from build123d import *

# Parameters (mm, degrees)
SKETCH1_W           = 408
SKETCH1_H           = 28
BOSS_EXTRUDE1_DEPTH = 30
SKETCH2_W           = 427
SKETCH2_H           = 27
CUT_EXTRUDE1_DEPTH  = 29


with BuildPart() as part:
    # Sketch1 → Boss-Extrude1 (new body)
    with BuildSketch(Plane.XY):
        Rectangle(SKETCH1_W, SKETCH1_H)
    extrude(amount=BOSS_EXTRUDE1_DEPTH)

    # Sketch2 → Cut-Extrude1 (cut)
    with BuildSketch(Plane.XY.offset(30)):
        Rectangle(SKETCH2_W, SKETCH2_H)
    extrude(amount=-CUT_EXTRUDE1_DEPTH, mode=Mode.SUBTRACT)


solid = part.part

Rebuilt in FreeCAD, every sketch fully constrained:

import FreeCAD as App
import Part
import Sketcher

V = App.Vector
Q = App.Units.Quantity

doc = App.newDocument("Part")
body = doc.addObject("PartDesign::Body", "Body")

sketch1 = doc.addObject("Sketcher::SketchObject", "Sketch")
body.addObject(sketch1)
sketch1.AttachmentSupport = (doc.XY_Plane, [""])
sketch1.MapMode = "FlatFace"
sketch1.addGeometry(Part.LineSegment(V(-204, 14, 0), V(-204, -14, 0)), False)
sketch1.addGeometry(Part.LineSegment(V(-204, -14, 0), V(204, -14, 0)), False)
sketch1.addGeometry(Part.LineSegment(V(204, -14, 0), V(204, 14, 0)), False)
sketch1.addGeometry(Part.LineSegment(V(204, 14, 0), V(-204, 14, 0)), False)
sketch1.addConstraint(Sketcher.Constraint("Coincident", 0, 2, 1, 1))
sketch1.addConstraint(Sketcher.Constraint("Coincident", 1, 2, 2, 1))
sketch1.addConstraint(Sketcher.Constraint("Coincident", 2, 2, 3, 1))
sketch1.addConstraint(Sketcher.Constraint("Coincident", 3, 2, 0, 1))
sketch1.addConstraint(Sketcher.Constraint("Vertical", 0))
sketch1.addConstraint(Sketcher.Constraint("Horizontal", 1))
sketch1.addConstraint(Sketcher.Constraint("Vertical", 2))
sketch1.addConstraint(Sketcher.Constraint("Horizontal", 3))
sketch1.addConstraint(Sketcher.Constraint("Symmetric", 0, 2, 2, 2, -1, 1))
sketch1.addConstraint(Sketcher.Constraint("DistanceX", 1, 1, 1, 2, Q("408 mm")))
sketch1.addConstraint(Sketcher.Constraint("DistanceY", 0, 2, 0, 1, Q("28 mm")))
pad1 = doc.addObject("PartDesign::Pad", "Pad")
body.addObject(pad1)
pad1.Profile = sketch1
pad1.Length = 30

sketch2 = doc.addObject("Sketcher::SketchObject", "Sketch001")
body.addObject(sketch2)
sketch2.AttachmentSupport = (doc.XY_Plane, [""])
sketch2.MapMode = "FlatFace"
sketch2.AttachmentOffset = App.Placement(V(0, 0, 30), App.Rotation())
sketch2.addGeometry(Part.LineSegment(V(-214, 14, 0), V(-214, -14, 0)), False)
sketch2.addGeometry(Part.LineSegment(V(-214, -14, 0), V(214, -14, 0)), False)
sketch2.addGeometry(Part.LineSegment(V(214, -14, 0), V(214, 14, 0)), False)
sketch2.addGeometry(Part.LineSegment(V(214, 14, 0), V(-214, 14, 0)), False)
sketch2.addConstraint(Sketcher.Constraint("Coincident", 0, 2, 1, 1))
sketch2.addConstraint(Sketcher.Constraint("Coincident", 1, 2, 2, 1))
sketch2.addConstraint(Sketcher.Constraint("Coincident", 2, 2, 3, 1))
sketch2.addConstraint(Sketcher.Constraint("Coincident", 3, 2, 0, 1))
sketch2.addConstraint(Sketcher.Constraint("Vertical", 0))
sketch2.addConstraint(Sketcher.Constraint("Horizontal", 1))
sketch2.addConstraint(Sketcher.Constraint("Vertical", 2))
sketch2.addConstraint(Sketcher.Constraint("Horizontal", 3))
sketch2.addConstraint(Sketcher.Constraint("Symmetric", 0, 2, 2, 2, -1, 1))
sketch2.addConstraint(Sketcher.Constraint("DistanceX", 1, 1, 1, 2, Q("427 mm")))
sketch2.addConstraint(Sketcher.Constraint("DistanceY", 0, 2, 0, 1, Q("27 mm")))
pocket1 = doc.addObject("PartDesign::Pocket", "Pocket")
body.addObject(pocket1)
pocket1.Profile = sketch2
pocket1.Length = 29

doc.recompute()
